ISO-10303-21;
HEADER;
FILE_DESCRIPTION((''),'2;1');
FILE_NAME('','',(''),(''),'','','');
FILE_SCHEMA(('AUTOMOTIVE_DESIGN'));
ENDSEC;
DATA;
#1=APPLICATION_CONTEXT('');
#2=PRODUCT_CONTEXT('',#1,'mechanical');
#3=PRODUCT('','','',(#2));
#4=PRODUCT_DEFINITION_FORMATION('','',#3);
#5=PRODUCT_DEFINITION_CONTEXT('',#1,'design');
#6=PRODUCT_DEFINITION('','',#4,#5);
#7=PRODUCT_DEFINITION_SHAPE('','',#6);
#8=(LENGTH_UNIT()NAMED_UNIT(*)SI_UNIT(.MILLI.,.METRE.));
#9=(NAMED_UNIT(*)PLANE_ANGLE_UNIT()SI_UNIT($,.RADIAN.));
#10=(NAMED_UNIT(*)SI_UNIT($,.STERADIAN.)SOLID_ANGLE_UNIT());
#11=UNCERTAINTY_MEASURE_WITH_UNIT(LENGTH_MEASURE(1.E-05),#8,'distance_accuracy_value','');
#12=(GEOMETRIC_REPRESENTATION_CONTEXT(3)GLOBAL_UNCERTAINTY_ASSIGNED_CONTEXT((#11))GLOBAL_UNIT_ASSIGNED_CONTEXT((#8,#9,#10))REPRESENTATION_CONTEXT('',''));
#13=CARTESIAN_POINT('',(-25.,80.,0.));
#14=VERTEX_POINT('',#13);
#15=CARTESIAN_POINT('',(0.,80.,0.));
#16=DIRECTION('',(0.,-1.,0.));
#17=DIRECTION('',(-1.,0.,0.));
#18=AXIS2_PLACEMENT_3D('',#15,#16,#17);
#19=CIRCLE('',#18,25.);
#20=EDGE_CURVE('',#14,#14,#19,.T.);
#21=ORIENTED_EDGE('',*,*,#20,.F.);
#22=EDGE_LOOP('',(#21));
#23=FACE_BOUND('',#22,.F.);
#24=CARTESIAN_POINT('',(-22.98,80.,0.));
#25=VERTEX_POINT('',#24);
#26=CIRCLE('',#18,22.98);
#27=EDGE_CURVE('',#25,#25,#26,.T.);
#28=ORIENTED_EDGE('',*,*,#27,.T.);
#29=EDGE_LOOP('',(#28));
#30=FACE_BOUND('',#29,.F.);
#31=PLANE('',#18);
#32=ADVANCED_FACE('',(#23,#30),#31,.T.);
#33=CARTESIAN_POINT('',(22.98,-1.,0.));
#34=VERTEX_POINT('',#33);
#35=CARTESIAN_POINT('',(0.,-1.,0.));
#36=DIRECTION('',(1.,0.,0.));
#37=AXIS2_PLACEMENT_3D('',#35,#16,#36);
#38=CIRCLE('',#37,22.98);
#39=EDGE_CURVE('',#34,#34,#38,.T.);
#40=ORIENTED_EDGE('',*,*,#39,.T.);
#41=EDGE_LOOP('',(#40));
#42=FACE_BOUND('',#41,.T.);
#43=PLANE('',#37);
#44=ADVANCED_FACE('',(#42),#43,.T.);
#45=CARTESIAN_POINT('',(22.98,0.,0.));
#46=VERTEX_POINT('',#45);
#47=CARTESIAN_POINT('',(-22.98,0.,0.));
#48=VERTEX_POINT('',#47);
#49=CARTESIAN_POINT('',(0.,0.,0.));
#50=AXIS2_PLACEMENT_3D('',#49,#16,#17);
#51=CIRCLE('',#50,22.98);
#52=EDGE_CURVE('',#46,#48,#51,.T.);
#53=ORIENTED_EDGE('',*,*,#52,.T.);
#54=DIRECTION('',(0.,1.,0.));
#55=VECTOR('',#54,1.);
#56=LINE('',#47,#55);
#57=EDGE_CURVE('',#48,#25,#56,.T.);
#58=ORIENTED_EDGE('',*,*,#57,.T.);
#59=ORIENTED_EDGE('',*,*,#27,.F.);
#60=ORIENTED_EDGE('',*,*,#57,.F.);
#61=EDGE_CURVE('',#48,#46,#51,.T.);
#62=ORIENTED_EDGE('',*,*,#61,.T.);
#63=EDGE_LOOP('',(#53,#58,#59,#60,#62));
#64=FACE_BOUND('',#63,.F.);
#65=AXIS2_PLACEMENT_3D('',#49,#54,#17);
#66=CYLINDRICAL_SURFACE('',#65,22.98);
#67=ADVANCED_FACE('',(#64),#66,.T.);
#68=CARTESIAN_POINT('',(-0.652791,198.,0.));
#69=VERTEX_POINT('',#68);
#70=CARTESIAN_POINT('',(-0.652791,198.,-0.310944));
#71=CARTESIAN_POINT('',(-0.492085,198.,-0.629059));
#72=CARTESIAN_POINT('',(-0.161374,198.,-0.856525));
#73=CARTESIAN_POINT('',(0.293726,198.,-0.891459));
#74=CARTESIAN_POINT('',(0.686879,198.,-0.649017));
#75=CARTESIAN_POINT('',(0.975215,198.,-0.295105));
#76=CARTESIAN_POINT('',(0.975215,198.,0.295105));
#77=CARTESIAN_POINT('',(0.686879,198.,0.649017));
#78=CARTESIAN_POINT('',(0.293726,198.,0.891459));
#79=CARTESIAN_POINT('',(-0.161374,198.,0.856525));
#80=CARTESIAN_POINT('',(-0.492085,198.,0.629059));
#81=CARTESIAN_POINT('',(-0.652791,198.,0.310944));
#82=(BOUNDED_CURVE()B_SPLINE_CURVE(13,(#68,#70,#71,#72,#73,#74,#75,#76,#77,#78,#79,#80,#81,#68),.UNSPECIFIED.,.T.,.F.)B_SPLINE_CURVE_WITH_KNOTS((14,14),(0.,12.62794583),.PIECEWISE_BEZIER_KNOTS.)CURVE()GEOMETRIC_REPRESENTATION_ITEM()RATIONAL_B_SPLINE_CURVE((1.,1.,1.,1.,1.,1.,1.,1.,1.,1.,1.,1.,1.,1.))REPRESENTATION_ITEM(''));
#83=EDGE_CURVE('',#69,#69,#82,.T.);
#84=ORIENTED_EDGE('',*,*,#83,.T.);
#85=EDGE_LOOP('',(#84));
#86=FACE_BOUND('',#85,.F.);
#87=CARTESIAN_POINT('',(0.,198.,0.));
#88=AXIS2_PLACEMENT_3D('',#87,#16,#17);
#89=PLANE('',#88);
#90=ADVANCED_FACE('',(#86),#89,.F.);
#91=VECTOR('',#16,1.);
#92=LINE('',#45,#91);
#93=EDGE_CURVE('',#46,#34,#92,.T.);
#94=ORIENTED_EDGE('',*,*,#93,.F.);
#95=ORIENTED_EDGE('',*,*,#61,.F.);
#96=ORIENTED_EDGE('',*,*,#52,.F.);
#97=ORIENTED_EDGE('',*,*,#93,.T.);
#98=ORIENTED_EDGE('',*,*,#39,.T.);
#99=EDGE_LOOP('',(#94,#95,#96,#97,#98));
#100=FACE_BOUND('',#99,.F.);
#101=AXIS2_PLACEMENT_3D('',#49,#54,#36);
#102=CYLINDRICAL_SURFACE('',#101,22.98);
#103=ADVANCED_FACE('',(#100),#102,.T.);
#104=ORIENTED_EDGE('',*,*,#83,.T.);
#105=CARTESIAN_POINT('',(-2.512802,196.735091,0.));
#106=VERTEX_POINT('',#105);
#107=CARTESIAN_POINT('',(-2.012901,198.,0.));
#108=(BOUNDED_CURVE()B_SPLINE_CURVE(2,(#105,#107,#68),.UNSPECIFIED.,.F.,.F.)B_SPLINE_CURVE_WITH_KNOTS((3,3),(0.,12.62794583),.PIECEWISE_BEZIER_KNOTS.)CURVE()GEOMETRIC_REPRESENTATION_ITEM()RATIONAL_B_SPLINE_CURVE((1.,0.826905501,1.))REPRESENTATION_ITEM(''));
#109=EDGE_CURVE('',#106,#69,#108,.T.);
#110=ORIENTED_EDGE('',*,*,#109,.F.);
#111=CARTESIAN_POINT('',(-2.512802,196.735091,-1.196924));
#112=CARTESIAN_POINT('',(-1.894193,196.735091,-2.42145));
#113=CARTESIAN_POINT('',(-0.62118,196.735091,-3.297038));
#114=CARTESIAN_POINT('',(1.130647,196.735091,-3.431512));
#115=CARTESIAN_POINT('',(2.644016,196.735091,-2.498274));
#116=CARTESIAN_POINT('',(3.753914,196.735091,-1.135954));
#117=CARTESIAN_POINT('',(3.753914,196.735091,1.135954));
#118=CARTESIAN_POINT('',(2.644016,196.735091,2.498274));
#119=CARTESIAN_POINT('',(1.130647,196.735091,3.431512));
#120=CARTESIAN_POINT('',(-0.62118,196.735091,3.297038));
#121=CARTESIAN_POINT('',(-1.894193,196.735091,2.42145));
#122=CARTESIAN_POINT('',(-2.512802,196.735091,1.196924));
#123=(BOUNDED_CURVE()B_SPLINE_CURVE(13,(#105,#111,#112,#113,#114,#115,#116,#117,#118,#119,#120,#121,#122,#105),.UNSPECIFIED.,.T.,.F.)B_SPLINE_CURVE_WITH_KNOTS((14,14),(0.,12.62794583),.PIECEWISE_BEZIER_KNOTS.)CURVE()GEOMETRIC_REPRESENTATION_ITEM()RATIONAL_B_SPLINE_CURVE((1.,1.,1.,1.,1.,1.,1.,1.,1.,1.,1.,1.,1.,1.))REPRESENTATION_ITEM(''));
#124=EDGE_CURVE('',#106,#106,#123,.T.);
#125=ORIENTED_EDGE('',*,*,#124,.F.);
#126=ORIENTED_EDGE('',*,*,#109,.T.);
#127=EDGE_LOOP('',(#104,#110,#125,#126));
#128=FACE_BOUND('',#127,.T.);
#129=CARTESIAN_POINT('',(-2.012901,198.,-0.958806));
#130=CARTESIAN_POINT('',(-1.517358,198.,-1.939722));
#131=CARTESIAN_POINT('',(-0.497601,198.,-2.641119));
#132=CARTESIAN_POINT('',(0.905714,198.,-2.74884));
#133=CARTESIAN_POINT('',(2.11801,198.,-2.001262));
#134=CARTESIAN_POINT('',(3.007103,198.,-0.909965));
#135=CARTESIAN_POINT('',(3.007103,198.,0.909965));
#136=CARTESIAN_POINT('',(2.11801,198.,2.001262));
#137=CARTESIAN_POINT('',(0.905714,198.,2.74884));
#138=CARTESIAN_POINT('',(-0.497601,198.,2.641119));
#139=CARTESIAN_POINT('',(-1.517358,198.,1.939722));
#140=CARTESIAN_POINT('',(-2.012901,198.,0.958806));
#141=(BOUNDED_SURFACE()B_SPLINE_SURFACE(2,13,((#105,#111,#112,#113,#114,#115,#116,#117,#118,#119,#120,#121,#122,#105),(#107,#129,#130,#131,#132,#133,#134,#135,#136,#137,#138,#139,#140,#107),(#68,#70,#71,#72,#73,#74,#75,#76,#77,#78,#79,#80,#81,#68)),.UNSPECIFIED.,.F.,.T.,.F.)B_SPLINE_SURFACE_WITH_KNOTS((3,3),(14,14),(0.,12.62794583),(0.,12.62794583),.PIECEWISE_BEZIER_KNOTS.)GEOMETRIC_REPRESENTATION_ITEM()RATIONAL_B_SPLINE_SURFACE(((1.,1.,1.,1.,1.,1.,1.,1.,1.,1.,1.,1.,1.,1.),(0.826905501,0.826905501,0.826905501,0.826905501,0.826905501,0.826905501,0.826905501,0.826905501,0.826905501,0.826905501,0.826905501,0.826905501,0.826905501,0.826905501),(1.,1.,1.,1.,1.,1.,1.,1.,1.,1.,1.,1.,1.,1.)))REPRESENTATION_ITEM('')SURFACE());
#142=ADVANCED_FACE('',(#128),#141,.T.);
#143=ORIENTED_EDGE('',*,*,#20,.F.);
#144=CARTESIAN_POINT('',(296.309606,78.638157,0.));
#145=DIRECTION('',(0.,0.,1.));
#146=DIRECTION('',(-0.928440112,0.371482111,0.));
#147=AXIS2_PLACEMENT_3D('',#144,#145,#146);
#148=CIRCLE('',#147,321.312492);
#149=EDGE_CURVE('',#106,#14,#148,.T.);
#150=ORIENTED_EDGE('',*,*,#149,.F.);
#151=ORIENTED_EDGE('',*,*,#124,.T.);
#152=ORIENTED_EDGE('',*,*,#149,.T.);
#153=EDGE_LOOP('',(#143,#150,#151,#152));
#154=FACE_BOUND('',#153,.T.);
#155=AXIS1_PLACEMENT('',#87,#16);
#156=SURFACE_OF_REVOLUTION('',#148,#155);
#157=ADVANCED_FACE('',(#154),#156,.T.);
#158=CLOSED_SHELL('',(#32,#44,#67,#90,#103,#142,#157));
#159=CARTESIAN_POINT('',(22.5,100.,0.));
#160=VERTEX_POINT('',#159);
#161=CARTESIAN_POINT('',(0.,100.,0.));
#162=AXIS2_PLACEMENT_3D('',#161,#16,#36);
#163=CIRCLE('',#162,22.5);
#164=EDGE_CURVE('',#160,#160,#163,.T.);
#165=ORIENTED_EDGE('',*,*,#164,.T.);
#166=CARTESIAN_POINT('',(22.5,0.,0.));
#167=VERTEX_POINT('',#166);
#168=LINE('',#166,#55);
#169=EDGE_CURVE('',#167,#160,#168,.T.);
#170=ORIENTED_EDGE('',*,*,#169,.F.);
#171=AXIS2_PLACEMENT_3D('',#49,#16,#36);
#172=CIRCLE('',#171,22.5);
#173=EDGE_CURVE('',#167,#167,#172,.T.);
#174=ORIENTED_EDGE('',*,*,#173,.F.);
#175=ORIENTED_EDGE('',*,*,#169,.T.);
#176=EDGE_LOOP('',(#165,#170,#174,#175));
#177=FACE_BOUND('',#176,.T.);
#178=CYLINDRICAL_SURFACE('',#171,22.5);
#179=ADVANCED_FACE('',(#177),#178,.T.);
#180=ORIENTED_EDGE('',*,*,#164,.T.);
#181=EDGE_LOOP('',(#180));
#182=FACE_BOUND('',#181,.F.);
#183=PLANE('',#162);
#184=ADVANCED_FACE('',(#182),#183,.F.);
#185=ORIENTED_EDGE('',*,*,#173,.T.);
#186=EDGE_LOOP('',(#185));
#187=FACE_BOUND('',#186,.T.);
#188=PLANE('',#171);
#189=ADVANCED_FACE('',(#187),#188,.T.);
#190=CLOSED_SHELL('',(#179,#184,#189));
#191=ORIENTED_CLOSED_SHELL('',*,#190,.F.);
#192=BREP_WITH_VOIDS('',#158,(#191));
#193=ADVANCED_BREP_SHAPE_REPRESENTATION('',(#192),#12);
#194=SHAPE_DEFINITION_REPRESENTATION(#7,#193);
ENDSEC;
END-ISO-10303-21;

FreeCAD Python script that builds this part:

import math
import FreeCAD as App
import Part
import Sketcher
from FreeCAD import Vector


def edges_at(feature, points):
    """Names of the edges that pass closest to the given points."""
    edges = feature.Shape.Edges
    near = lambda p: min(range(len(edges)), key=lambda i: edges[i].distToShape(Part.Vertex(*p))[0])
    return sorted({f"Edge{near(p) + 1}" for p in points})

doc = App.newDocument("Part")
body = doc.addObject("PartDesign::Body", "Body")

sketch1 = body.newObject("Sketcher::SketchObject", "Sketch")
sketch1.AttachmentSupport = (doc.getObject("XY_Plane"), [""])
sketch1.MapMode = "FlatFace"
sketch1.addGeometry(Part.LineSegment(Vector(-23, 0, 0), Vector(0, 0, 0)), False)
sketch1.addGeometry(Part.LineSegment(Vector(0, 0, 0), Vector(0, 198, 0)), False)
sketch1.addGeometry(Part.LineSegment(Vector(0, 198, 0), Vector(-2, 198, 0)), False)
sketch1.addGeometry(Part.ArcOfCircle(Part.Circle(Vector(296.3, 78.6, 0), Vector(0, 0, 1), 321.3), math.radians(158), math.radians(180)), False)
sketch1.addGeometry(Part.LineSegment(Vector(-25, 80, 0), Vector(-23, 80, 0)), False)
sketch1.addGeometry(Part.LineSegment(Vector(-23, 80, 0), Vector(-23, 0, 0)), False)
sketch1.addConstraint(Sketcher.Constraint("Coincident", 0, 2, 1, 1))
sketch1.addConstraint(Sketcher.Constraint("Coincident", 1, 2, 2, 1))
sketch1.addConstraint(Sketcher.Constraint("Coincident", 2, 2, 3, 1))
sketch1.addConstraint(Sketcher.Constraint("Coincident", 3, 2, 4, 1))
sketch1.addConstraint(Sketcher.Constraint("Coincident", 4, 2, 5, 1))
sketch1.addConstraint(Sketcher.Constraint("Coincident", 5, 2, 0, 1))
sketch1.addConstraint(Sketcher.Constraint("Horizontal", 0))
sketch1.addConstraint(Sketcher.Constraint("Vertical", 1))
sketch1.addConstraint(Sketcher.Constraint("Horizontal", 2))
sketch1.addConstraint(Sketcher.Constraint("Horizontal", 4))
sketch1.addConstraint(Sketcher.Constraint("Vertical", 5))
sketch1.addConstraint(Sketcher.Constraint("Coincident", 0, 2, -1, 1))
sketch1.addConstraint(Sketcher.Constraint("DistanceY", 1, 1, 1, 2, 198.0))
sketch1.addConstraint(Sketcher.Constraint("DistanceY", 5, 2, 5, 1, 80.0))
sketch1.addConstraint(Sketcher.Constraint("DistanceX", 0, 1, 0, 2, 22.98))
sketch1.addConstraint(Sketcher.Constraint("DistanceX", 4, 1, 4, 2, 2.02))
sketch1.addConstraint(Sketcher.Constraint("Radius", 3, 321.3127))
sketch1.addConstraint(Sketcher.Constraint("DistanceX", 2, 2, 2, 1, 2.0098))
revolution = body.newObject("PartDesign::Revolution", "Revolution")
revolution.Profile = sketch1
revolution.ReferenceAxis = (sketch1, ["V_Axis"])
revolution.Angle = 360
doc.recompute()

fillet = body.newObject("PartDesign::Fillet", "Fillet")
fillet.Base = (revolution, edges_at(revolution, [(2.01, 198, 0)]))
fillet.Radius = 2

sketch2 = body.newObject("Sketcher::SketchObject", "Sketch001")
sketch2.AttachmentSupport = (doc.getObject("XZ_Plane"), [""])
sketch2.MapMode = "FlatFace"
sketch2.addGeometry(Part.Circle(Vector(0, 0, 0), Vector(0, 0, 1), 22), False)
sketch2.addConstraint(Sketcher.Constraint("Coincident", 0, 3, -1, 1))
sketch2.addConstraint(Sketcher.Constraint("Diameter", 0, 45.0))
pocket1 = body.newObject("PartDesign::Pocket", "Pocket")
pocket1.Profile = sketch2
pocket1.Length = 100

sketch3 = body.newObject("Sketcher::SketchObject", "Sketch002")
sketch3.AttachmentSupport = (doc.getObject("XZ_Plane"), [""])
sketch3.MapMode = "FlatFace"
sketch3.addGeometry(Part.Circle(Vector(0, 0, 0), Vector(0, 0, 1), 23), False)
sketch3.addConstraint(Sketcher.Constraint("Coincident", 0, 3, -1, 1))
sketch3.addConstraint(Sketcher.Constraint("Diameter", 0, 45.96))
pad1 = body.newObject("PartDesign::Pad", "Pad")
pad1.Profile = sketch3
pad1.Length = 1

doc.recompute()
